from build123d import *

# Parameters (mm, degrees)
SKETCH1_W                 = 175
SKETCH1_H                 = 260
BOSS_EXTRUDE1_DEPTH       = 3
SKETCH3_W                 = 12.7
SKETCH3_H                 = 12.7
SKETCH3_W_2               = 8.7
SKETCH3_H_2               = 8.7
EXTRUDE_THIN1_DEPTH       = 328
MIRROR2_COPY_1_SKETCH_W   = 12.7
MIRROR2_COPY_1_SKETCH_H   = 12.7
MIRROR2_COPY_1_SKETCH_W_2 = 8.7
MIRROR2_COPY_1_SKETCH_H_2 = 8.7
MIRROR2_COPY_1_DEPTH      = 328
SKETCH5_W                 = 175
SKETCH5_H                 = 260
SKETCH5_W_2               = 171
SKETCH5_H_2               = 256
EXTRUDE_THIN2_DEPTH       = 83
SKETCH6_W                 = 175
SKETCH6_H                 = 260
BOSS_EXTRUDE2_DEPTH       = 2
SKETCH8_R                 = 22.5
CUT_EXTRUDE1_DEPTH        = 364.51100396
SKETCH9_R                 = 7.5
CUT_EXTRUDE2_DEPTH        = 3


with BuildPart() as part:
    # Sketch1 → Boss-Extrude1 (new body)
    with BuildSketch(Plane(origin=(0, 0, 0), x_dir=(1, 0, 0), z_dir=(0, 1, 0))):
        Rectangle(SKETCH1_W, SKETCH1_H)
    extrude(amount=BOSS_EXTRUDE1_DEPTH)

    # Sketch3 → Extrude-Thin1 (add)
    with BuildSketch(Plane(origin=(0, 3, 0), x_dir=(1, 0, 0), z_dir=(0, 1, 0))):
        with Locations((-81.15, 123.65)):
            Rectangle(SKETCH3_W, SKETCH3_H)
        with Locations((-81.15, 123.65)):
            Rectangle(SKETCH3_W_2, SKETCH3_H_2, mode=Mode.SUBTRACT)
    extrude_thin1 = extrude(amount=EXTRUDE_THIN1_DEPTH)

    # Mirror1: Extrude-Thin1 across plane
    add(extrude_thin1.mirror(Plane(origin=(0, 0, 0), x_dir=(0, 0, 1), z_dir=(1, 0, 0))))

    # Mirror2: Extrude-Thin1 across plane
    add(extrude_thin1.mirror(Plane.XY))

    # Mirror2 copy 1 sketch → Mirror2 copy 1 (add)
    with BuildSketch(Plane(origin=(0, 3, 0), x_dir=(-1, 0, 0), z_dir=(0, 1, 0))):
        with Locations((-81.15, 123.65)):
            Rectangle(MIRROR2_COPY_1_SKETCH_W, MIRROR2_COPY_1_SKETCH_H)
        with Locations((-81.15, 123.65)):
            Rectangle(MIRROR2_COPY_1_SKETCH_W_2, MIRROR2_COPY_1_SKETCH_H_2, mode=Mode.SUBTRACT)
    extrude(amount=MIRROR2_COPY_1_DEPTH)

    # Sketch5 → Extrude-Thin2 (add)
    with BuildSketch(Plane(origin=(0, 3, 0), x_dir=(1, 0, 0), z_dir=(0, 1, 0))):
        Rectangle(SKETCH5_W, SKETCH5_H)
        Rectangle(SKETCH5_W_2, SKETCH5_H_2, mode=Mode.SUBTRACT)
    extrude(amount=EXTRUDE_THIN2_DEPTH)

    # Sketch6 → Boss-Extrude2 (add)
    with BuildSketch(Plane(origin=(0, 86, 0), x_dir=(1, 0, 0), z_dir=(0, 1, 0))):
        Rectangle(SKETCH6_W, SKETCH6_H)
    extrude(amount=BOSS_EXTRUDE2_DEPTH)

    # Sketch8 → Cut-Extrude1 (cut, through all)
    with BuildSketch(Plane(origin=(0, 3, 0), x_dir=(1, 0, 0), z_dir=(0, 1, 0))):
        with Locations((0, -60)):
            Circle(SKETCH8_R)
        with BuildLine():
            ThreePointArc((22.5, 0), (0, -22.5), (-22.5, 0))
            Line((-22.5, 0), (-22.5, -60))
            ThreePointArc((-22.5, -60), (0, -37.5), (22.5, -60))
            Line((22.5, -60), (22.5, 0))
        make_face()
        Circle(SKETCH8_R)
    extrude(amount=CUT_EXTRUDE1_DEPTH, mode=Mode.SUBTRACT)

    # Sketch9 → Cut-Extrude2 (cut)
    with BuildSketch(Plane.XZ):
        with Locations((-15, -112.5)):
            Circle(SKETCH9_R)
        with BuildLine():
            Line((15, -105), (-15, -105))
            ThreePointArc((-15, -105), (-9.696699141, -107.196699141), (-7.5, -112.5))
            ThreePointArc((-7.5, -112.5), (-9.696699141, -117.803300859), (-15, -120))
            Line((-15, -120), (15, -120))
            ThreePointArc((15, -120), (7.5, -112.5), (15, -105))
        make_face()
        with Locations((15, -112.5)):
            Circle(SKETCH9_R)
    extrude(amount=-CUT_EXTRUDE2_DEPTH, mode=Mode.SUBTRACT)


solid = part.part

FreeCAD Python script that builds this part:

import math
import FreeCAD as App
import Part
import Sketcher

doc = App.newDocument("Part")
body = doc.addObject("PartDesign::Body", "Body")

# Sketch on XZ plane
sketch1 = doc.addObject("Sketcher::SketchObject", "Sketch")
body.addObject(sketch1)
sketch1.AttachmentSupport = (doc.XZ_Plane, [""])
sketch1.MapMode = "FlatFace"
sketch1.addGeometry(Part.LineSegment(App.Vector(-87.5, -130, 0), App.Vector(-87.5, 130, 0)), False)
sketch1.addGeometry(Part.LineSegment(App.Vector(-87.5, 130, 0), App.Vector(87.5, 130, 0)), False)
sketch1.addGeometry(Part.LineSegment(App.Vector(87.5, 130, 0), App.Vector(87.5, -130, 0)), False)
sketch1.addGeometry(Part.LineSegment(App.Vector(87.5, -130, 0), App.Vector(-87.5, -130, 0)), False)
sketch1.addConstraint(Sketcher.Constraint("Coincident", 0, 2, 1, 1))
sketch1.addConstraint(Sketcher.Constraint("Coincident", 1, 2, 2, 1))
sketch1.addConstraint(Sketcher.Constraint("Coincident", 2, 2, 3, 1))
sketch1.addConstraint(Sketcher.Constraint("Coincident", 3, 2, 0, 1))
sketch1.addConstraint(Sketcher.Constraint("Vertical", 0))
sketch1.addConstraint(Sketcher.Constraint("Horizontal", 1))
sketch1.addConstraint(Sketcher.Constraint("Vertical", 2))
sketch1.addConstraint(Sketcher.Constraint("Horizontal", 3))
sketch1.addConstraint(Sketcher.Constraint("Symmetric", 0, 2, 2, 2, -1, 1))
sketch1.addConstraint(Sketcher.Constraint("DistanceX", 1, 1, 1, 2, 175.0))
sketch1.addConstraint(Sketcher.Constraint("DistanceY", 0, 1, 0, 2, 260.0))
pad1 = doc.addObject("PartDesign::Pad", "Pad")
body.addObject(pad1)
pad1.Profile = sketch1
pad1.Length = 3
pad1.Reversed = True

# Sketch on XZ plane
sketch2 = doc.addObject("Sketcher::SketchObject", "Sketch001")
body.addObject(sketch2)
sketch2.AttachmentSupport = (doc.XZ_Plane, [""])
sketch2.MapMode = "FlatFace"
sketch2.AttachmentOffset = App.Placement(App.Vector(0, 0, -3), App.Rotation())
sketch2.addGeometry(Part.LineSegment(App.Vector(-87.5, -130, 0), App.Vector(-87.5, -117.3, 0)), False)
sketch2.addGeometry(Part.LineSegment(App.Vector(-87.5, -117.3, 0), App.Vector(-74.8, -117.3, 0)), False)
sketch2.addGeometry(Part.LineSegment(App.Vector(-74.8, -117.3, 0), App.Vector(-74.8, -130, 0)), False)
sketch2.addGeometry(Part.LineSegment(App.Vector(-74.8, -130, 0), App.Vector(-87.5, -130, 0)), False)
sketch2.addGeometry(Part.LineSegment(App.Vector(-76.8, -119.3, 0), App.Vector(-85.5, -119.3, 0)), False)
sketch2.addGeometry(Part.LineSegment(App.Vector(-85.5, -119.3, 0), App.Vector(-85.5, -128, 0)), False)
sketch2.addGeometry(Part.LineSegment(App.Vector(-85.5, -128, 0), App.Vector(-76.8, -128, 0)), False)
sketch2.addGeometry(Part.LineSegment(App.Vector(-76.8, -128, 0), App.Vector(-76.8, -119.3, 0)), False)
sketch2.addConstraint(Sketcher.Constraint("Coincident", 0, 2, 1, 1))
sketch2.addConstraint(Sketcher.Constraint("Coincident", 1, 2, 2, 1))
sketch2.addConstraint(Sketcher.Constraint("Coincident", 2, 2, 3, 1))
sketch2.addConstraint(Sketcher.Constraint("Coincident", 3, 2, 0, 1))
sketch2.addConstraint(Sketcher.Constraint("Coincident", 4, 2, 5, 1))
sketch2.addConstraint(Sketcher.Constraint("Coincident", 5, 2, 6, 1))
sketch2.addConstraint(Sketcher.Constraint("Coincident", 6, 2, 7, 1))
sketch2.addConstraint(Sketcher.Constraint("Coincident", 7, 2, 4, 1))
sketch2.addConstraint(Sketcher.Constraint("Vertical", 0))
sketch2.addConstraint(Sketcher.Constraint("Horizontal", 1))
sketch2.addConstraint(Sketcher.Constraint("Vertical", 2))
sketch2.addConstraint(Sketcher.Constraint("Horizontal", 3))
sketch2.addConstraint(Sketcher.Constraint("Horizontal", 4))
sketch2.addConstraint(Sketcher.Constraint("Vertical", 5))
sketch2.addConstraint(Sketcher.Constraint("Horizontal", 6))
sketch2.addConstraint(Sketcher.Constraint("Vertical", 7))
sketch2.addConstraint(Sketcher.Constraint("Equal", 3, 0))
sketch2.addConstraint(Sketcher.Constraint("Equal", 6, 5))
sketch2.addConstraint(Sketcher.Constraint("DistanceX", 1, 1, 1, 2, 12.7))
sketch2.addConstraint(Sketcher.Constraint("DistanceX", 4, 2, 4, 1, 8.7))
sketch2.addConstraint(Sketcher.Constraint("DistanceY", 2, 2, -1, 1, 130.0))
sketch2.addConstraint(Sketcher.Constraint("DistanceY", 5, 2, -1, 1, 128.0))
sketch2.addConstraint(Sketcher.Constraint("DistanceX", 0, 2, 4, 2, 2.0))
sketch2.addConstraint(Sketcher.Constraint("DistanceX", 0, 2, -1, 1, 87.5))
pad2 = doc.addObject("PartDesign::Pad", "Pad001")
body.addObject(pad2)
pad2.Profile = sketch2
pad2.Length = 328
pad2.Reversed = True
doc.recompute()

mirrored = doc.addObject("PartDesign::Mirrored", "Mirrored")
body.addObject(mirrored)
mirrored.Originals = [pad2]
mirrored.MirrorPlane = (doc.YZ_Plane, [""])
body.Tip = mirrored
doc.recompute()

mirrored2 = doc.addObject("PartDesign::Mirrored", "Mirrored001")
body.addObject(mirrored2)
mirrored2.Originals = [pad2]
mirrored2.MirrorPlane = (doc.XY_Plane, [""])
body.Tip = mirrored2

# Sketch on XZ plane
sketch3 = doc.addObject("Sketcher::SketchObject", "Sketch002")
body.addObject(sketch3)
sketch3.AttachmentSupport = (doc.XZ_Plane, [""])
sketch3.MapMode = "FlatFace"
sketch3.AttachmentOffset = App.Placement(App.Vector(0, 0, -3), App.Rotation())
sketch3.addGeometry(Part.LineSegment(App.Vector(87.5, 130, 0), App.Vector(87.5, 117.3, 0)), False)
sketch3.addGeometry(Part.LineSegment(App.Vector(87.5, 117.3, 0), App.Vector(74.8, 117.3, 0)), False)
sketch3.addGeometry(Part.LineSegment(App.Vector(74.8, 117.3, 0), App.Vector(74.8, 130, 0)), False)
sketch3.addGeometry(Part.LineSegment(App.Vector(74.8, 130, 0), App.Vector(87.5, 130, 0)), False)
sketch3.addGeometry(Part.LineSegment(App.Vector(76.8, 119.3, 0), App.Vector(85.5, 119.3, 0)), False)
sketch3.addGeometry(Part.LineSegment(App.Vector(85.5, 119.3, 0), App.Vector(85.5, 128, 0)), False)
sketch3.addGeometry(Part.LineSegment(App.Vector(85.5, 128, 0), App.Vector(76.8, 128, 0)), False)
sketch3.addGeometry(Part.LineSegment(App.Vector(76.8, 128, 0), App.Vector(76.8, 119.3, 0)), False)
sketch3.addConstraint(Sketcher.Constraint("Coincident", 0, 2, 1, 1))
sketch3.addConstraint(Sketcher.Constraint("Coincident", 1, 2, 2, 1))
sketch3.addConstraint(Sketcher.Constraint("Coincident", 2, 2, 3, 1))
sketch3.addConstraint(Sketcher.Constraint("Coincident", 3, 2, 0, 1))
sketch3.addConstraint(Sketcher.Constraint("Coincident", 4, 2, 5, 1))
sketch3.addConstraint(Sketcher.Constraint("Coincident", 5, 2, 6, 1))
sketch3.addConstraint(Sketcher.Constraint("Coincident", 6, 2, 7, 1))
sketch3.addConstraint(Sketcher.Constraint("Coincident", 7, 2, 4, 1))
sketch3.addConstraint(Sketcher.Constraint("Vertical", 0))
sketch3.addConstraint(Sketcher.Constraint("Horizontal", 1))
sketch3.addConstraint(Sketcher.Constraint("Vertical", 2))
sketch3.addConstraint(Sketcher.Constraint("Horizontal", 3))
sketch3.addConstraint(Sketcher.Constraint("Horizontal", 4))
sketch3.addConstraint(Sketcher.Constraint("Vertical", 5))
sketch3.addConstraint(Sketcher.Constraint("Horizontal", 6))
sketch3.addConstraint(Sketcher.Constraint("Vertical", 7))
sketch3.addConstraint(Sketcher.Constraint("Equal", 3, 0))
sketch3.addConstraint(Sketcher.Constraint("Equal", 6, 5))
sketch3.addConstraint(Sketcher.Constraint("DistanceX", 1, 2, 1, 1, 12.7))
sketch3.addConstraint(Sketcher.Constraint("DistanceX", 4, 1, 4, 2, 8.7))
sketch3.addConstraint(Sketcher.Constraint("DistanceY", -1, 1, 2, 2, 130.0))
sketch3.addConstraint(Sketcher.Constraint("DistanceY", -1, 1, 5, 2, 128.0))
sketch3.addConstraint(Sketcher.Constraint("DistanceX", 4, 2, 0, 2, 2.0))
sketch3.addConstraint(Sketcher.Constraint("DistanceX", -1, 1, 0, 2, 87.5))
pad3 = doc.addObject("PartDesign::Pad", "Pad002")
body.addObject(pad3)
pad3.Profile = sketch3
pad3.Length = 328
pad3.Reversed = True

# Sketch on XZ plane
sketch4 = doc.addObject("Sketcher::SketchObject", "Sketch003")
body.addObject(sketch4)
sketch4.AttachmentSupport = (doc.XZ_Plane, [""])
sketch4.MapMode = "FlatFace"
sketch4.AttachmentOffset = App.Placement(App.Vector(0, 0, -3), App.Rotation())
sketch4.addGeometry(Part.LineSegment(App.Vector(-87.5, -130, 0), App.Vector(-87.5, 130, 0)), False)
sketch4.addGeometry(Part.LineSegment(App.Vector(-87.5, 130, 0), App.Vector(87.5, 130, 0)), False)
sketch4.addGeometry(Part.LineSegment(App.Vector(87.5, 130, 0), App.Vector(87.5, -130, 0)), False)
sketch4.addGeometry(Part.LineSegment(App.Vector(87.5, -130, 0), App.Vector(-87.5, -130, 0)), False)
sketch4.addGeometry(Part.LineSegment(App.Vector(85.5, 128, 0), App.Vector(-85.5, 128, 0)), False)
sketch4.addGeometry(Part.LineSegment(App.Vector(-85.5, 128, 0), App.Vector(-85.5, -128, 0)), False)
sketch4.addGeometry(Part.LineSegment(App.Vector(-85.5, -128, 0), App.Vector(85.5, -128, 0)), False)
sketch4.addGeometry(Part.LineSegment(App.Vector(85.5, -128, 0), App.Vector(85.5, 128, 0)), False)
sketch4.addConstraint(Sketcher.Constraint("Coincident", 0, 2, 1, 1))
sketch4.addConstraint(Sketcher.Constraint("Coincident", 1, 2, 2, 1))
sketch4.addConstraint(Sketcher.Constraint("Coincident", 2, 2, 3, 1))
sketch4.addConstraint(Sketcher.Constraint("Coincident", 3, 2, 0, 1))
sketch4.addConstraint(Sketcher.Constraint("Coincident", 4, 2, 5, 1))
sketch4.addConstraint(Sketcher.Constraint("Coincident", 5, 2, 6, 1))
sketch4.addConstraint(Sketcher.Constraint("Coincident", 6, 2, 7, 1))
sketch4.addConstraint(Sketcher.Constraint("Coincident", 7, 2, 4, 1))
sketch4.addConstraint(Sketcher.Constraint("Vertical", 0))
sketch4.addConstraint(Sketcher.Constraint("Horizontal", 1))
sketch4.addConstraint(Sketcher.Constraint("Vertical", 2))
sketch4.addConstraint(Sketcher.Constraint("Horizontal", 3))
sketch4.addConstraint(Sketcher.Constraint("Horizontal", 4))
sketch4.addConstraint(Sketcher.Constraint("Vertical", 5))
sketch4.addConstraint(Sketcher.Constraint("Horizontal", 6))
sketch4.addConstraint(Sketcher.Constraint("Vertical", 7))
sketch4.addConstraint(Sketcher.Constraint("Symmetric", 0, 2, 2, 2, -1, 1))
sketch4.addConstraint(Sketcher.Constraint("Symmetric", 4, 2, 6, 2, -1, 1))
sketch4.addConstraint(Sketcher.Constraint("DistanceX", 1, 1, 1, 2, 175.0))
sketch4.addConstraint(Sketcher.Constraint("DistanceX", 4, 2, 4, 1, 171.0))
sketch4.addConstraint(Sketcher.Constraint("DistanceY", 0, 1, 0, 2, 260.0))
sketch4.addConstraint(Sketcher.Constraint("DistanceY", 5, 2, 5, 1, 256.0))
pad4 = doc.addObject("PartDesign::Pad", "Pad003")
body.addObject(pad4)
pad4.Profile = sketch4
pad4.Length = 83
pad4.Reversed = True

# Sketch on XZ plane
sketch5 = doc.addObject("Sketcher::SketchObject", "Sketch004")
body.addObject(sketch5)
sketch5.AttachmentSupport = (doc.XZ_Plane, [""])
sketch5.MapMode = "FlatFace"
sketch5.AttachmentOffset = App.Placement(App.Vector(0, 0, -86), App.Rotation())
sketch5.addGeometry(Part.LineSegment(App.Vector(-87.5, -130, 0), App.Vector(-87.5, 130, 0)), False)
sketch5.addGeometry(Part.LineSegment(App.Vector(-87.5, 130, 0), App.Vector(87.5, 130, 0)), False)
sketch5.addGeometry(Part.LineSegment(App.Vector(87.5, 130, 0), App.Vector(87.5, -130, 0)), False)
sketch5.addGeometry(Part.LineSegment(App.Vector(87.5, -130, 0), App.Vector(-87.5, -130, 0)), False)
sketch5.addConstraint(Sketcher.Constraint("Coincident", 0, 2, 1, 1))
sketch5.addConstraint(Sketcher.Constraint("Coincident", 1, 2, 2, 1))
sketch5.addConstraint(Sketcher.Constraint("Coincident", 2, 2, 3, 1))
sketch5.addConstraint(Sketcher.Constraint("Coincident", 3, 2, 0, 1))
sketch5.addConstraint(Sketcher.Constraint("Vertical", 0))
sketch5.addConstraint(Sketcher.Constraint("Horizontal", 1))
sketch5.addConstraint(Sketcher.Constraint("Vertical", 2))
sketch5.addConstraint(Sketcher.Constraint("Horizontal", 3))
sketch5.addConstraint(Sketcher.Constraint("Symmetric", 0, 2, 2, 2, -1, 1))
sketch5.addConstraint(Sketcher.Constraint("DistanceX", 1, 1, 1, 2, 175.0))
sketch5.addConstraint(Sketcher.Constraint("DistanceY", 0, 1, 0, 2, 260.0))
pad5 = doc.addObject("PartDesign::Pad", "Pad004")
body.addObject(pad5)
pad5.Profile = sketch5
pad5.Length = 2
pad5.Reversed = True

# Sketch on XZ plane
sketch6 = doc.addObject("Sketcher::SketchObject", "Sketch005")
body.addObject(sketch6)
sketch6.AttachmentSupport = (doc.XZ_Plane, [""])
sketch6.MapMode = "FlatFace"
sketch6.AttachmentOffset = App.Placement(App.Vector(0, 0, -3), App.Rotation())
sketch6.addGeometry(Part.ArcOfCircle(Part.Circle(App.Vector(0, 60, 0), App.Vector(0, 0, 1), 22.5), math.radians(0), math.radians(180)), False)
sketch6.addGeometry(Part.LineSegment(App.Vector(22.5, 60, 0), App.Vector(22.5, 0, 0)), False)
sketch6.addGeometry(Part.ArcOfCircle(Part.Circle(App.Vector(0, 0, 0), App.Vector(0, 0, 1), 22.5), math.radians(180), math.radians(360)), False)
sketch6.addGeometry(Part.LineSegment(App.Vector(-22.5, 0, 0), App.Vector(-22.5, 60, 0)), False)
sketch6.addConstraint(Sketcher.Constraint("Tangent", 0, 1, 1, 1))
sketch6.addConstraint(Sketcher.Constraint("Tangent", 1, 2, 2, 2))
sketch6.addConstraint(Sketcher.Constraint("Tangent", 2, 1, 3, 1))
sketch6.addConstraint(Sketcher.Constraint("Tangent", 3, 2, 0, 2))
sketch6.addConstraint(Sketcher.Constraint("Vertical", 1))
sketch6.addConstraint(Sketcher.Constraint("Vertical", 3))
sketch6.addConstraint(Sketcher.Constraint("Coincident", 2, 3, -1, 1))
sketch6.addConstraint(Sketcher.Constraint("Radius", 0, 22.5))
sketch6.addConstraint(Sketcher.Constraint("DistanceY", 1, 2, 1, 1, 60.0))
pocket1 = doc.addObject("PartDesign::Pocket", "Pocket")
body.addObject(pocket1)
pocket1.Profile = sketch6
pocket1.Type = "ThroughAll"

# Sketch on XZ plane
sketch7 = doc.addObject("Sketcher::SketchObject", "Sketch006")
body.addObject(sketch7)
sketch7.AttachmentSupport = (doc.XZ_Plane, [""])
sketch7.MapMode = "FlatFace"
sketch7.addGeometry(Part.ArcOfCircle(Part.Circle(App.Vector(-15, -112.5, 0), App.Vector(0, 0, 1), 7.5), math.radians(90), math.radians(270)), False)
sketch7.addGeometry(Part.LineSegment(App.Vector(-15, -120, 0), App.Vector(15, -120, 0)), False)
sketch7.addGeometry(Part.ArcOfCircle(Part.Circle(App.Vector(15, -112.5, 0), App.Vector(0, 0, 1), 7.5), math.radians(-90), math.radians(90)), False)
sketch7.addGeometry(Part.LineSegment(App.Vector(15, -105, 0), App.Vector(-15, -105, 0)), False)
sketch7.addConstraint(Sketcher.Constraint("Tangent", 0, 2, 1, 1))
sketch7.addConstraint(Sketcher.Constraint("Tangent", 1, 2, 2, 1))
sketch7.addConstraint(Sketcher.Constraint("Tangent", 2, 2, 3, 1))
sketch7.addConstraint(Sketcher.Constraint("Tangent", 3, 2, 0, 1))
sketch7.addConstraint(Sketcher.Constraint("Horizontal", 1))
sketch7.addConstraint(Sketcher.Constraint("Horizontal", 3))
sketch7.addConstraint(Sketcher.Constraint("Radius", 0, 7.5))
sketch7.addConstraint(Sketcher.Constraint("DistanceX", 1, 1, 1, 2, 30.0))
sketch7.addConstraint(Sketcher.Constraint("DistanceX", 0, 3, -1, 1, 15.0))
sketch7.addConstraint(Sketcher.Constraint("DistanceY", 0, 2, -1, 1, 120.0))
pocket2 = doc.addObject("PartDesign::Pocket", "Pocket001")
body.addObject(pocket2)
pocket2.Profile = sketch7
pocket2.Length = 3

doc.recompute()
